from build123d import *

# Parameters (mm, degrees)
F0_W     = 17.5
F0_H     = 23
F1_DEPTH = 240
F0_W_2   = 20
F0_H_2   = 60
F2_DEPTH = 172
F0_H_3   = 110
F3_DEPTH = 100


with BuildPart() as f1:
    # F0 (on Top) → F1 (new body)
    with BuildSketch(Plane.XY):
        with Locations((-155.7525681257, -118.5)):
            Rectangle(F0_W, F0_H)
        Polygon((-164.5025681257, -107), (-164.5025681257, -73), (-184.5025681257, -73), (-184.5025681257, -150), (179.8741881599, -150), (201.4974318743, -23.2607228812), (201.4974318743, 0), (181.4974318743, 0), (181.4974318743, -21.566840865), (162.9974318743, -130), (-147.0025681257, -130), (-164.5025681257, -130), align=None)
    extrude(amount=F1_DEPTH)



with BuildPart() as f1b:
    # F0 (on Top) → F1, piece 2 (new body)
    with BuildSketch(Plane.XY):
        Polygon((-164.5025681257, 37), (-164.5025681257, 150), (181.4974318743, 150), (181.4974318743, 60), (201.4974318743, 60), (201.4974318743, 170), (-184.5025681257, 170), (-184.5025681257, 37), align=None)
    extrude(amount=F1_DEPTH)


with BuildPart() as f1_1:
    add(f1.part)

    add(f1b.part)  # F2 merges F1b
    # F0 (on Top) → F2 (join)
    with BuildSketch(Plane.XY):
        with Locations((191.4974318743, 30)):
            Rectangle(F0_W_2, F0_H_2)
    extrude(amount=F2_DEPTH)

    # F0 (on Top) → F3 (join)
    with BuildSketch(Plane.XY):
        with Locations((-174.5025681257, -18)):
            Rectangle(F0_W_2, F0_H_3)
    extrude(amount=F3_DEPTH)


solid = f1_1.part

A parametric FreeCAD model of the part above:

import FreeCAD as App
import Part
import Sketcher

V = App.Vector


def add_polygon(sketch, points):
    """Adds a closed chain of lines whose ends are joined by coincident constraints."""
    first, n = sketch.GeometryCount, len(points)
    for a, b in zip(points, points[1:] + points[:1]):
        sketch.addGeometry(Part.LineSegment(App.Vector(*a, 0), App.Vector(*b, 0)), False)
    for i in range(n):
        sketch.addConstraint(Sketcher.Constraint("Coincident", first + i, 2, first + (i + 1) % n, 1))

doc = App.newDocument("Part")
params = doc.addObject("Spreadsheet::Sheet", "Params")
for row, (alias, value) in enumerate([
    ("sketch1_width", "20 mm"),
    ("sketch1_width2", "310 mm"),
    ("sketch1_height", "23 mm"),
    ("sketch1_height2", "34 mm"),
    ("sketch1_height3", "77 mm"),
    ("pad1_length", "240 mm"),
    ("sketch2_width", "346 mm"),
    ("sketch2_width2", "20 mm"),
    ("sketch2_height", "113 mm"),
    ("sketch2_height2", "90 mm"),
    ("sketch2_height3", "110 mm"),
    ("pad2_length", "240 mm"),
    ("sketch3_width", "20 mm"),
    ("sketch3_height", "60 mm"),
    ("pad3_length", "172 mm"),
    ("sketch4_width", "20 mm"),
    ("sketch4_height", "110 mm"),
    ("pad4_length", "100 mm"),
], start=1):
    params.set(f"A{row}", alias)
    params.set(f"B{row}", "=" + value)
    params.setAlias(f"B{row}", alias)

body = doc.addObject("PartDesign::Body", "Body")

# Sketch on XY plane
sketch1 = body.newObject("Sketcher::SketchObject", "Sketch")
sketch1.AttachmentSupport = (doc.getObject("XY_Plane"), [""])
sketch1.MapMode = "FlatFace"
add_polygon(sketch1, [(-147, -130), (-147, -107), (-165, -107), (-165, -73), (-185, -73), (-185, -150), (180, -150), (201, -23), (201, 0), (181, 0), (181, -22), (163, -130)])  # lines 0-11
sketch1.addConstraint([
    Sketcher.Constraint("Vertical", 0),
    Sketcher.Constraint("Horizontal", 1),
    Sketcher.Constraint("Vertical", 2),
    Sketcher.Constraint("Horizontal", 3),
    Sketcher.Constraint("Vertical", 4),
    Sketcher.Constraint("Horizontal", 5),
    Sketcher.Constraint("Vertical", 7),
    Sketcher.Constraint("Horizontal", 8),
    Sketcher.Constraint("Vertical", 9),
    Sketcher.Constraint("Horizontal", 11),
    Sketcher.Constraint("PointOnObject", 7, 2, -1),
    Sketcher.Constraint("Parallel", 6, 10),
    Sketcher.Constraint("Equal", 3, 8),
    Sketcher.Constraint("DistanceX", 3, 2, 3, 1, 20.0),
    Sketcher.Constraint("DistanceX", 11, 2, 11, 1, 310.0),
    Sketcher.Constraint("DistanceY", 0, 1, 0, 2, 23.0),
    Sketcher.Constraint("DistanceY", 2, 1, 2, 2, 34.0),
    Sketcher.Constraint("DistanceY", 4, 2, 4, 1, 77.0),
    Sketcher.Constraint("Distance", 10, 110.0),
    Sketcher.Constraint("DistanceX", 1, 2, 1, 1, 17.5),
    Sketcher.Constraint("DistanceY", 0, 2, -1, 1, 107.0),
    Sketcher.Constraint("DistanceX", 2, 2, 6, 2, 366.0),
    Sketcher.Constraint("Distance", 6, 128.570638),
    Sketcher.Constraint("DistanceX", 0, 2, -1, 1, 147.002568),
])
sketch1.setExpression("Constraints[25]", "Params.sketch1_width")
sketch1.setExpression("Constraints[26]", "Params.sketch1_width2")
sketch1.setExpression("Constraints[27]", "Params.sketch1_height")
sketch1.setExpression("Constraints[28]", "Params.sketch1_height2")
sketch1.setExpression("Constraints[29]", "Params.sketch1_height3")
pad1 = body.newObject("PartDesign::Pad", "Pad")
pad1.Profile = sketch1
pad1.setExpression("Length", "Params.pad1_length")
body2 = doc.addObject("PartDesign::Body", "Body001")

# Sketch on XY plane
sketch2 = body2.newObject("Sketcher::SketchObject", "Sketch001")
sketch2.AttachmentSupport = (doc.getObject("XY_Plane001"), [""])
sketch2.MapMode = "FlatFace"
add_polygon(sketch2, [(-165, 37), (-165, 150), (181, 150), (181, 60), (201, 60), (201, 170), (-185, 170), (-185, 37)])  # lines 0-7
sketch2.addConstraint([
    Sketcher.Constraint("Vertical", 0),
    Sketcher.Constraint("Horizontal", 1),
    Sketcher.Constraint("Vertical", 2),
    Sketcher.Constraint("Horizontal", 3),
    Sketcher.Constraint("Vertical", 4),
    Sketcher.Constraint("Horizontal", 5),
    Sketcher.Constraint("Vertical", 6),
    Sketcher.Constraint("Horizontal", 7),
    Sketcher.Constraint("Equal", 3, 7),
    Sketcher.Constraint("DistanceX", 1, 1, 1, 2, 346.0),
    Sketcher.Constraint("DistanceX", 3, 1, 3, 2, 20.0),
    Sketcher.Constraint("DistanceY", 0, 1, 0, 2, 113.0),
    Sketcher.Constraint("DistanceY", 2, 2, 2, 1, 90.0),
    Sketcher.Constraint("DistanceY", 4, 1, 4, 2, 110.0),
    Sketcher.Constraint("DistanceY", -1, 1, 0, 2, 150.0),
    Sketcher.Constraint("DistanceX", 0, 2, -1, 1, 164.502568),
])
sketch2.setExpression("Constraints[17]", "Params.sketch2_width")
sketch2.setExpression("Constraints[18]", "Params.sketch2_width2")
sketch2.setExpression("Constraints[19]", "Params.sketch2_height")
sketch2.setExpression("Constraints[20]", "Params.sketch2_height2")
sketch2.setExpression("Constraints[21]", "Params.sketch2_height3")
pad2 = body2.newObject("PartDesign::Pad", "Pad001")
pad2.Profile = sketch2
pad2.setExpression("Length", "Params.pad2_length")
body.AllowCompound = True
doc.recompute()

boolean = body.newObject("PartDesign::Boolean", "Boolean")
boolean.Type = "Fuse"
boolean.addObjects([body2])

# Sketch on XY plane
sketch3 = body.newObject("Sketcher::SketchObject", "Sketch002")
sketch3.AttachmentSupport = (doc.getObject("XY_Plane"), [""])
sketch3.MapMode = "FlatFace"
add_polygon(sketch3, [(181, 60), (181, 0), (201, 0), (201, 60)])  # lines 0-3
sketch3.addConstraint([
    Sketcher.Constraint("Vertical", 0),
    Sketcher.Constraint("Horizontal", 1),
    Sketcher.Constraint("Vertical", 2),
    Sketcher.Constraint("Horizontal", 3),
    Sketcher.Constraint("PointOnObject", 0, 2, -1),
    Sketcher.Constraint("DistanceX", 1, 1, 1, 2, 20.0),
    Sketcher.Constraint("DistanceY", 0, 2, 0, 1, 60.0),
    Sketcher.Constraint("DistanceX", -1, 1, 0, 2, 181.497432),
])
sketch3.setExpression("Constraints[9]", "Params.sketch3_width")
sketch3.setExpression("Constraints[10]", "Params.sketch3_height")
pad3 = body.newObject("PartDesign::Pad", "Pad002")
pad3.Profile = sketch3
pad3.setExpression("Length", "Params.pad3_length")

# Sketch on XY plane
sketch4 = body.newObject("Sketcher::SketchObject", "Sketch003")
sketch4.AttachmentSupport = (doc.getObject("XY_Plane"), [""])
sketch4.MapMode = "FlatFace"
add_polygon(sketch4, [(-185, 37), (-185, -73), (-165, -73), (-165, 37)])  # lines 0-3
sketch4.addConstraint([
    Sketcher.Constraint("Vertical", 0),
    Sketcher.Constraint("Horizontal", 1),
    Sketcher.Constraint("Vertical", 2),
    Sketcher.Constraint("Horizontal", 3),
    Sketcher.Constraint("DistanceX", 1, 1, 1, 2, 20.0),
    Sketcher.Constraint("DistanceY", 0, 2, 0, 1, 110.0),
    Sketcher.Constraint("DistanceY", 0, 2, -1, 1, 73.0),
    Sketcher.Constraint("DistanceX", 0, 2, -1, 1, 184.502568),
])
sketch4.setExpression("Constraints[8]", "Params.sketch4_width")
sketch4.setExpression("Constraints[9]", "Params.sketch4_height")
pad4 = body.newObject("PartDesign::Pad", "Pad003")
pad4.Profile = sketch4
pad4.setExpression("Length", "Params.pad4_length")

doc.recompute()
